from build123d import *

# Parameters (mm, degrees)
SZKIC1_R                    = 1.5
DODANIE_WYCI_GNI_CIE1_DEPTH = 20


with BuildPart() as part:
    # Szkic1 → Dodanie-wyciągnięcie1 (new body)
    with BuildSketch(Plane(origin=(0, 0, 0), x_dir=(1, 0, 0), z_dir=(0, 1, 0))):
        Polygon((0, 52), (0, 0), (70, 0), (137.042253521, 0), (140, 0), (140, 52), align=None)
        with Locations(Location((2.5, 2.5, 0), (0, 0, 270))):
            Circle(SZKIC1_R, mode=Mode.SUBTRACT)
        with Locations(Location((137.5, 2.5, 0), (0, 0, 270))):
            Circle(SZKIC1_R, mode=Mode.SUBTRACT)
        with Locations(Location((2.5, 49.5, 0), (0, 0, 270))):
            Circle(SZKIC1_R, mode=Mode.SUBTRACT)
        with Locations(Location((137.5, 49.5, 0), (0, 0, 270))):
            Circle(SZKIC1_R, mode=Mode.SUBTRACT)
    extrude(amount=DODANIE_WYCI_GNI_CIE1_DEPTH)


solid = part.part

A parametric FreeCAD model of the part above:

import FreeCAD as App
import Part
import Sketcher
from FreeCAD import Vector


def add_polygon(sketch, points):
    """Adds a closed chain of lines whose ends are joined by coincident constraints."""
    first, n = sketch.GeometryCount, len(points)
    for a, b in zip(points, points[1:] + points[:1]):
        sketch.addGeometry(Part.LineSegment(App.Vector(*a, 0), App.Vector(*b, 0)), False)
    for i in range(n):
        sketch.addConstraint(Sketcher.Constraint("Coincident", first + i, 2, first + (i + 1) % n, 1))

doc = App.newDocument("Part")
params = doc.addObject("Spreadsheet::Sheet", "Params")
for row, (alias, value) in enumerate([
    ("sketch1_diameter", "3 mm"),
    ("sketch1_width", "140 mm"),
    ("sketch1_height", "52 mm"),
    ("pad1_length", "20 mm"),
], start=1):
    params.set(f"A{row}", alias)
    params.set(f"B{row}", "=" + value)
    params.setAlias(f"B{row}", alias)

body = doc.addObject("PartDesign::Body", "Body")

sketch1 = body.newObject("Sketcher::SketchObject", "Sketch")
sketch1.AttachmentSupport = (doc.getObject("XZ_Plane"), [""])
sketch1.MapMode = "FlatFace"
add_polygon(sketch1, [(0, -52), (0, 0), (140, 0), (140, -52)])
sketch1.addGeometry(Part.Circle(Vector(2.5, -2.5, 0), Vector(0, 0, 1), 1.5), False)
sketch1.addGeometry(Part.Circle(Vector(137.5, -2.5, 0), Vector(0, 0, 1), 1.5), False)
sketch1.addGeometry(Part.Circle(Vector(2.5, -49.5, 0), Vector(0, 0, 1), 1.5), False)
sketch1.addGeometry(Part.Circle(Vector(137.5, -49.5, 0), Vector(0, 0, 1), 1.5), False)
sketch1.addConstraint(Sketcher.Constraint("Vertical", 0))
sketch1.addConstraint(Sketcher.Constraint("Horizontal", 1))
sketch1.addConstraint(Sketcher.Constraint("Vertical", 2))
sketch1.addConstraint(Sketcher.Constraint("Horizontal", 3))
sketch1.addConstraint(Sketcher.Constraint("Coincident", 0, 2, -1, 1))
sketch1.addConstraint(Sketcher.Constraint("Equal", 4, 5))
sketch1.addConstraint(Sketcher.Constraint("Equal", 5, 6))
sketch1.addConstraint(Sketcher.Constraint("Equal", 6, 7))
sketch1.addConstraint(Sketcher.Constraint("Horizontal", 4, 3, 5, 3))
sketch1.addConstraint(Sketcher.Constraint("Horizontal", 6, 3, 7, 3))
sketch1.addConstraint(Sketcher.Constraint("Vertical", 4, 3, 6, 3))
sketch1.addConstraint(Sketcher.Constraint("Vertical", 5, 3, 7, 3))
sketch1.addConstraint(Sketcher.Constraint("Diameter", 4, 3.0))
sketch1.addConstraint(Sketcher.Constraint("DistanceX", 1, 1, 1, 2, 140.0))
sketch1.addConstraint(Sketcher.Constraint("DistanceY", 0, 1, 0, 2, 52.0))
sketch1.addConstraint(Sketcher.Constraint("DistanceX", 4, 3, 5, 3, 135.0))
sketch1.addConstraint(Sketcher.Constraint("DistanceY", 6, 3, 4, 3, 47.0))
sketch1.addConstraint(Sketcher.Constraint("DistanceX", -1, 1, 4, 3, 2.5))
sketch1.addConstraint(Sketcher.Constraint("DistanceY", 4, 3, -1, 1, 2.5))
sketch1.setExpression("Constraints[16]", "Params.sketch1_diameter")
sketch1.setExpression("Constraints[17]", "Params.sketch1_width")
sketch1.setExpression("Constraints[18]", "Params.sketch1_height")
pad1 = body.newObject("PartDesign::Pad", "Pad")
pad1.Profile = sketch1
pad1.setExpression("Length", "Params.pad1_length")
pad1.Reversed = True

doc.recompute()
